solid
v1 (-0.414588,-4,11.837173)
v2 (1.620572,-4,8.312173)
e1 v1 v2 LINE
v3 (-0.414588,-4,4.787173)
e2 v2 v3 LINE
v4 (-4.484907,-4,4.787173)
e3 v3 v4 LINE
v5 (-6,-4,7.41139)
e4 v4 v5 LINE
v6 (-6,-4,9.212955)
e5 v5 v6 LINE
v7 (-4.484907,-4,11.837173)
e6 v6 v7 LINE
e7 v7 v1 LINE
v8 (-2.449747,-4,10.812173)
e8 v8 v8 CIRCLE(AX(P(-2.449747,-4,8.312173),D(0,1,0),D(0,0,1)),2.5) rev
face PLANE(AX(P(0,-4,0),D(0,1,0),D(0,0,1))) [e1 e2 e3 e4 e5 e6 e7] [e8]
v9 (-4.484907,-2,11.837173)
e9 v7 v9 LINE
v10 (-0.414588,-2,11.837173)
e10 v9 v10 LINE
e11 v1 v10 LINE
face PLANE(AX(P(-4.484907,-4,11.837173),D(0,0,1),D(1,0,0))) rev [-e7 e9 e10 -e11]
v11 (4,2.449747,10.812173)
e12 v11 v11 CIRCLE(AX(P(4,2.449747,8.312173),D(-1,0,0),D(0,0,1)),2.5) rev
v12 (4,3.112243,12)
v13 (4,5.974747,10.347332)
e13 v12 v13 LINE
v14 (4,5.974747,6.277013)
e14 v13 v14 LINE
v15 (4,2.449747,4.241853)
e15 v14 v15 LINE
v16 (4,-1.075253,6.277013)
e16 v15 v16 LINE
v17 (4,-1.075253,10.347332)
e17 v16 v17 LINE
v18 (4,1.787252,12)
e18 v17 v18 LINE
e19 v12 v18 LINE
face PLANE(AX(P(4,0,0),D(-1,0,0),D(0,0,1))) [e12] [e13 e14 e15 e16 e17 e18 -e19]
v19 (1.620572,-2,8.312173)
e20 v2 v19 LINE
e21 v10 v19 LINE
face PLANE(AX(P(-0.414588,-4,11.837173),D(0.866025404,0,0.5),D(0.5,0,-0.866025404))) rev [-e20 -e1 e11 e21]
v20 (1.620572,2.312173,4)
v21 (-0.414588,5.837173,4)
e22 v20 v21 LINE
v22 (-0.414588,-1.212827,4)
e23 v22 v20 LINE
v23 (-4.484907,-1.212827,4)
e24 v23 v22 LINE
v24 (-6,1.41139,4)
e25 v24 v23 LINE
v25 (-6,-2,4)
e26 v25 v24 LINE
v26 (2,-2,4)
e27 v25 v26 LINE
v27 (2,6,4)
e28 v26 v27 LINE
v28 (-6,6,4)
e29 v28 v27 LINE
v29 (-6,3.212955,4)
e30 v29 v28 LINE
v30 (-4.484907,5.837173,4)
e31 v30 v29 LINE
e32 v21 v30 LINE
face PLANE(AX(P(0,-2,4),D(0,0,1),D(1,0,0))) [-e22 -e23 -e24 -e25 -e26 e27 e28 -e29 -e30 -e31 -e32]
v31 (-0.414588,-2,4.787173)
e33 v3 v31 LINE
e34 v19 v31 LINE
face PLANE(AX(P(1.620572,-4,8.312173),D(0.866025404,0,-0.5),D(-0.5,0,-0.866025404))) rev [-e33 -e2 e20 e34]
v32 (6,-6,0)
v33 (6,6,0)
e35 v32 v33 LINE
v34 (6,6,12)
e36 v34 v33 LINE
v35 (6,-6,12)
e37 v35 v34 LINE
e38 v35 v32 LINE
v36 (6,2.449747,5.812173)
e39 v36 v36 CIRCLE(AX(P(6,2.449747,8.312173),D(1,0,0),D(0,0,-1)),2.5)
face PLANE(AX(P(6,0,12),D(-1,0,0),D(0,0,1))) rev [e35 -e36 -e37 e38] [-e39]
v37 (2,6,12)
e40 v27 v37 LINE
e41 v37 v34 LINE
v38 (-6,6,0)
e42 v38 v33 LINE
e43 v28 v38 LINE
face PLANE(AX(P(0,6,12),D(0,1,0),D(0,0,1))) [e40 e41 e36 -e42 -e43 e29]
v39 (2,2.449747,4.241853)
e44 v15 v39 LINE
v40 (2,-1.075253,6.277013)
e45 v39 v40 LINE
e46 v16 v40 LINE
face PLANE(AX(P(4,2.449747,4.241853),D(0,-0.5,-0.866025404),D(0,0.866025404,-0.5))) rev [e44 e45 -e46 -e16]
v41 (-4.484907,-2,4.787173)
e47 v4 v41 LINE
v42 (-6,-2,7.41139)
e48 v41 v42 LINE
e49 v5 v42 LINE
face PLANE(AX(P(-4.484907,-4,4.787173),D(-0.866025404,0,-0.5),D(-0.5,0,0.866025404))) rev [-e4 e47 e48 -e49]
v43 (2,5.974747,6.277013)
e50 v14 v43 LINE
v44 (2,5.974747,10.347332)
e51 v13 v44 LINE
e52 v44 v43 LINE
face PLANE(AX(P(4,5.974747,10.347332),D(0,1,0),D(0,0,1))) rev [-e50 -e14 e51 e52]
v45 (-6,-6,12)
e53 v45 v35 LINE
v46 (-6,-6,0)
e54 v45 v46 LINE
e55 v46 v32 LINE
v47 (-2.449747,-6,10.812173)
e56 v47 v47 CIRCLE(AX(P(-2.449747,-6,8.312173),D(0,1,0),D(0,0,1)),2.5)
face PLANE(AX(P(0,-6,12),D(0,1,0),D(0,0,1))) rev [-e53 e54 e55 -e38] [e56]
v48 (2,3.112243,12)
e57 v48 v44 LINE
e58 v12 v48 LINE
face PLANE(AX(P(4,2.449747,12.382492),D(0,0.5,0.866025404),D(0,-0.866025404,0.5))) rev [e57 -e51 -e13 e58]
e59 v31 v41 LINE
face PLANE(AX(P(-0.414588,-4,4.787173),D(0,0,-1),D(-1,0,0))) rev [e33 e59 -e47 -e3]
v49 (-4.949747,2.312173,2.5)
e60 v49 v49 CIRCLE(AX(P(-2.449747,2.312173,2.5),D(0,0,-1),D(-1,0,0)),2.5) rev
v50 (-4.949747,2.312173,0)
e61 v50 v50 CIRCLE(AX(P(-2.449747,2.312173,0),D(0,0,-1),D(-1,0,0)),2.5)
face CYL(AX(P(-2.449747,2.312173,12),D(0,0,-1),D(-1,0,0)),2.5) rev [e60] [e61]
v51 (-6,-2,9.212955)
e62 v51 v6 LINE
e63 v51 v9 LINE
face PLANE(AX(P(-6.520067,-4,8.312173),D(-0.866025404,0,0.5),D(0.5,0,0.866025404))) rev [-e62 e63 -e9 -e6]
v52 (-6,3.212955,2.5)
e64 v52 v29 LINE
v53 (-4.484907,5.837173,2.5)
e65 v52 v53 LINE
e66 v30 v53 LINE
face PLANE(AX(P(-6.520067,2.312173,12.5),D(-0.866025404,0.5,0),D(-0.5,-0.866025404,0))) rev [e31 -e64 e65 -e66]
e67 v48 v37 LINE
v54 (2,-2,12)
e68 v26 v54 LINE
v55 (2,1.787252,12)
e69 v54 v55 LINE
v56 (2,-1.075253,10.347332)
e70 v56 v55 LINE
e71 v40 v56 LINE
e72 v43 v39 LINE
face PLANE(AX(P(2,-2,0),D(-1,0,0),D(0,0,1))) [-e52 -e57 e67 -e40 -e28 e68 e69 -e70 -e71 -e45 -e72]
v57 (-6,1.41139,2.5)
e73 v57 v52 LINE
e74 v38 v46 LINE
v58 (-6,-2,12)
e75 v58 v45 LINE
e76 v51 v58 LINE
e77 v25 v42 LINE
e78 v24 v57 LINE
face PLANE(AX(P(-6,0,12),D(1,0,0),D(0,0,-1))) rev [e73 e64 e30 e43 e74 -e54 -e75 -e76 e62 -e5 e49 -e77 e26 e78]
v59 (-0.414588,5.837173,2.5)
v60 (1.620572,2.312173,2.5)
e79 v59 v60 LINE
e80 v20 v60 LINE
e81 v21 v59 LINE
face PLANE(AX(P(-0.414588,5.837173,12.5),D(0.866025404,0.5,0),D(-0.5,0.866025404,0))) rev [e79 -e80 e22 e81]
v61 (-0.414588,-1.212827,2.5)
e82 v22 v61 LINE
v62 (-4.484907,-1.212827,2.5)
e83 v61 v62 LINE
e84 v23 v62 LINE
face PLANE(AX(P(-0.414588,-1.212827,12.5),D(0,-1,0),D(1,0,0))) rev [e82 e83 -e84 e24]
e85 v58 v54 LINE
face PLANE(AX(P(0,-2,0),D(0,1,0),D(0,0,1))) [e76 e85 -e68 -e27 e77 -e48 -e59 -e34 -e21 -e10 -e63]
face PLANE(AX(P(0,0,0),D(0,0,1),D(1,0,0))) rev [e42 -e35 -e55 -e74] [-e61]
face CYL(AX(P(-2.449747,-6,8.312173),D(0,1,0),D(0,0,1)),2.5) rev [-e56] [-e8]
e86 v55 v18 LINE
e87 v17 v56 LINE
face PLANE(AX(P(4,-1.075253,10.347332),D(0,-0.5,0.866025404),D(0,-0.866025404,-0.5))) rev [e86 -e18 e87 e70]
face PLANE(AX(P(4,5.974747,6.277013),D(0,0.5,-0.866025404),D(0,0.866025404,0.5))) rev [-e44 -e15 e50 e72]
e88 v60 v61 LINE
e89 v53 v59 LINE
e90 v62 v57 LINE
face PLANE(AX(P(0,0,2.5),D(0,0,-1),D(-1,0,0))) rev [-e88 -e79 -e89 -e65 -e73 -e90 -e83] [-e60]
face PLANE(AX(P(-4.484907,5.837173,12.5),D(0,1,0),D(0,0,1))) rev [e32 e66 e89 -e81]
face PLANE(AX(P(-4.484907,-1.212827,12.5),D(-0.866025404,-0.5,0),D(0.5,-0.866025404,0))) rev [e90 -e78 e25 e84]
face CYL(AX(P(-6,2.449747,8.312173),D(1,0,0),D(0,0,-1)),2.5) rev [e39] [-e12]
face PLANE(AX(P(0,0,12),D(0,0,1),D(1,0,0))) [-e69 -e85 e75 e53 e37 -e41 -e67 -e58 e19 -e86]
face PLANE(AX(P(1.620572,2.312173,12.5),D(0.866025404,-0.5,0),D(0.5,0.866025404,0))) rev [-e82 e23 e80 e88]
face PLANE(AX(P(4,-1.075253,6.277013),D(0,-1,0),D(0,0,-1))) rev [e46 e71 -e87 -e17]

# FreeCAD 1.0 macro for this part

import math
import FreeCAD as App
import Part
import Sketcher

V = App.Vector
Q = App.Units.Quantity


def add_polygon(sketch, points):
    """Adds a closed chain of lines whose ends are joined by coincident constraints."""
    first, n = sketch.GeometryCount, len(points)
    for a, b in zip(points, points[1:] + points[:1]):
        sketch.addGeometry(Part.LineSegment(App.Vector(*a, 0), App.Vector(*b, 0)), False)
    for i in range(n):
        sketch.addConstraint(Sketcher.Constraint("Coincident", first + i, 2, first + (i + 1) % n, 1))

doc = App.newDocument("Part")
params = doc.addObject("Spreadsheet::Sheet", "Params")
for row, (alias, value) in enumerate([
    ("sketch1_width", "12 mm"),
    ("pad1_length", "12 mm"),
    ("sketch2_width", "8 mm"),
    ("pocket1_length", "8 mm"),
    ("sketch3_radius", "2.5 mm"),
    ("sketch4_diameter", "5 mm"),
    ("sketch5_radius", "2.5 mm"),
    ("pocket5_length", "10 mm"),
    ("pocket6_length", "2 mm"),
    ("pocket7_length", "2 mm"),
], start=1):
    params.set(f"A{row}", alias)
    params.set(f"B{row}", "=" + value)
    params.setAlias(f"B{row}", alias)

body = doc.addObject("PartDesign::Body", "Body")

sketch1 = body.newObject("Sketcher::SketchObject", "Sketch")
sketch1.AttachmentSupport = (doc.getObject("XY_Plane"), [""])
sketch1.MapMode = "FlatFace"
add_polygon(sketch1, [(6, -6), (6, 6), (-6, 6), (-6, -6)])
sketch1.addConstraint([
    Sketcher.Constraint("Vertical", 0),
    Sketcher.Constraint("Horizontal", 1),
    Sketcher.Constraint("Vertical", 2),
    Sketcher.Constraint("Horizontal", 3),
    Sketcher.Constraint("Symmetric", 0, 2, 2, 2, -1, 1),
    Sketcher.Constraint("Equal", 3, 0),
    Sketcher.Constraint("DistanceX", 1, 2, 1, 1, Q("12 mm")),
])
sketch1.setExpression("Constraints[10]", "Params.sketch1_width")
pad1 = body.newObject("PartDesign::Pad", "Pad")
pad1.Profile = sketch1
pad1.setExpression("Length", "Params.pad1_length")

sketch2 = body.newObject("Sketcher::SketchObject", "Sketch001")
sketch2.AttachmentSupport = (doc.getObject("XZ_Plane"), [""])
sketch2.MapMode = "FlatFace"
sketch2.AttachmentOffset = App.Placement(V(0, 0, -6), App.Rotation())
add_polygon(sketch2, [(-6, 4), (-6, 12), (2, 12), (2, 4)])
sketch2.addConstraint([
    Sketcher.Constraint("Vertical", 0),
    Sketcher.Constraint("Horizontal", 1),
    Sketcher.Constraint("Vertical", 2),
    Sketcher.Constraint("Horizontal", 3),
    Sketcher.Constraint("Equal", 3, 0),
    Sketcher.Constraint("DistanceX", 1, 1, 1, 2, Q("8 mm")),
    Sketcher.Constraint("DistanceX", 0, 2, -1, 1, Q("6 mm")),
    Sketcher.Constraint("DistanceY", -1, 1, 0, 2, Q("12 mm")),
])
sketch2.setExpression("Constraints[9]", "Params.sketch2_width")
pocket1 = body.newObject("PartDesign::Pocket", "Pocket")
pocket1.Profile = sketch2
pocket1.setExpression("Length", "Params.pocket1_length")
pocket1.Reversed = True

sketch3 = body.newObject("Sketcher::SketchObject", "Sketch002")
sketch3.AttachmentSupport = (doc.getObject("XZ_Plane"), [""])
sketch3.MapMode = "FlatFace"
sketch3.AttachmentOffset = App.Placement(V(0, 0, 2), App.Rotation())
sketch3.addGeometry([
    Part.ArcOfCircle(Part.Circle(V(-2.4, 8.3, 0), V(0, 0, 1), 2.5), math.radians(180), math.radians(270)),
    Part.ArcOfCircle(Part.Circle(V(-2.4, 8.3, 0), V(0, 0, 1), 2.5), math.radians(90), math.radians(180)),
    Part.ArcOfCircle(Part.Circle(V(-2.4, 8.3, 0), V(0, 0, 1), 2.5), math.radians(0), math.radians(90)),
    Part.ArcOfCircle(Part.Circle(V(-2.4, 8.3, 0), V(0, 0, 1), 2.5), math.radians(-90), math.radians(0)),
], False)
sketch3.addConstraint([
    Sketcher.Constraint("Tangent", 0, 1, 1, 2),
    Sketcher.Constraint("Tangent", 1, 1, 2, 2),
    Sketcher.Constraint("Tangent", 2, 1, 3, 2),
    Sketcher.Constraint("Tangent", 3, 1, 0, 2),
    Sketcher.Constraint("Equal", 0, 1),
    Sketcher.Constraint("Horizontal", 3, 3, 0, 1),
    Sketcher.Constraint("Horizontal", 0, 1, 2, 1),
    Sketcher.Constraint("Vertical", 3, 3, 1, 1),
    Sketcher.Constraint("Vertical", 1, 1, 3, 1),
    Sketcher.Constraint("Radius", 0, Q("2.5 mm")),
    Sketcher.Constraint("DistanceX", 0, 3, -1, 1, Q("2.449747 mm")),
    Sketcher.Constraint("DistanceY", -1, 1, 0, 3, Q("8.312173 mm")),
])
sketch3.setExpression("Constraints[9]", "Params.sketch3_radius")
pocket2 = body.newObject("PartDesign::Pocket", "Pocket001")
pocket2.Profile = sketch3
pocket2.Type = "ThroughAll"
pocket2.Reversed = True

sketch4 = body.newObject("Sketcher::SketchObject", "Sketch003")
sketch4.AttachmentSupport = (doc.getObject("YZ_Plane"), [""])
sketch4.MapMode = "FlatFace"
sketch4.AttachmentOffset = App.Placement(V(0, 0, 6), App.Rotation())
sketch4.addGeometry(Part.Circle(V(2.4, 8.3, 0), V(0, 0, 1), 2.5), False)
sketch4.addConstraint([
    Sketcher.Constraint("Diameter", 0, Q("5 mm")),
    Sketcher.Constraint("DistanceX", -1, 1, 0, 3, Q("2.449747 mm")),
    Sketcher.Constraint("DistanceY", -1, 1, 0, 3, Q("8.312173 mm")),
])
sketch4.setExpression("Constraints[0]", "Params.sketch4_diameter")
pocket3 = body.newObject("PartDesign::Pocket", "Pocket002")
pocket3.Profile = sketch4
pocket3.Type = "ThroughAll"

sketch5 = body.newObject("Sketcher::SketchObject", "Sketch004")
sketch5.AttachmentSupport = (doc.getObject("XY_Plane"), [""])
sketch5.MapMode = "FlatFace"
sketch5.addGeometry([
    Part.ArcOfCircle(Part.Circle(V(-2.4, 2.3, 0), V(0, 0, 1), 2.5), math.radians(180), math.radians(270)),
    Part.ArcOfCircle(Part.Circle(V(-2.4, 2.3, 0), V(0, 0, 1), 2.5), math.radians(90), math.radians(180)),
    Part.ArcOfCircle(Part.Circle(V(-2.4, 2.3, 0), V(0, 0, 1), 2.5), math.radians(0), math.radians(90)),
    Part.ArcOfCircle(Part.Circle(V(-2.4, 2.3, 0), V(0, 0, 1), 2.5), math.radians(-90), math.radians(0)),
], False)
sketch5.addConstraint([
    Sketcher.Constraint("Tangent", 0, 1, 1, 2),
    Sketcher.Constraint("Tangent", 1, 1, 2, 2),
    Sketcher.Constraint("Tangent", 2, 1, 3, 2),
    Sketcher.Constraint("Tangent", 3, 1, 0, 2),
    Sketcher.Constraint("Equal", 0, 1),
    Sketcher.Constraint("Horizontal", 3, 3, 0, 1),
    Sketcher.Constraint("Horizontal", 0, 1, 2, 1),
    Sketcher.Constraint("Vertical", 3, 3, 1, 1),
    Sketcher.Constraint("Vertical", 1, 1, 3, 1),
    Sketcher.Constraint("Radius", 0, Q("2.5 mm")),
    Sketcher.Constraint("DistanceX", 0, 3, -1, 1, Q("2.449747 mm")),
    Sketcher.Constraint("DistanceY", -1, 1, 0, 3, Q("2.312173 mm")),
])
sketch5.setExpression("Constraints[9]", "Params.sketch5_radius")
pocket4 = body.newObject("PartDesign::Pocket", "Pocket003")
pocket4.Profile = sketch5
pocket4.Type = "ThroughAll"
pocket4.Reversed = True

sketch6 = body.newObject("Sketcher::SketchObject", "Sketch005")
sketch6.AttachmentSupport = (doc.getObject("XY_Plane"), [""])
sketch6.MapMode = "FlatFace"
sketch6.AttachmentOffset = App.Placement(V(0, 0, 2.5), App.Rotation())
add_polygon(sketch6, [(-6.5, 2.3), (-4.5, 5.8), (-0.4, 5.8), (1.6, 2.3), (-0.4, -1.2), (-4.5, -1.2)])
sketch6.addConstraint([
    Sketcher.Constraint("Horizontal", 1),
    Sketcher.Constraint("Horizontal", 4),
    Sketcher.Constraint("Parallel", 0, 3),
    Sketcher.Constraint("Parallel", 2, 5),
    Sketcher.Constraint("Horizontal", 2, 2, 5, 2),
    Sketcher.Constraint("Vertical", 1, 2, 3, 2),
    Sketcher.Constraint("Vertical", 0, 2, 4, 2),
    Sketcher.Constraint("Angle", 0, Q("60 deg")),
    Sketcher.Constraint("DistanceY", 3, 2, 1, 2, Q("7.05 mm")),
    Sketcher.Constraint("DistanceX", 1, 1, 1, 2, Q("4.070319 mm")),
    Sketcher.Constraint("DistanceX", -1, 1, 2, 2, Q("1.620572 mm")),
    Sketcher.Constraint("DistanceY", -1, 1, 0, 2, Q("5.837173 mm")),
])
pocket5 = body.newObject("PartDesign::Pocket", "Pocket004")
pocket5.Profile = sketch6
pocket5.setExpression("Length", "Params.pocket5_length")
pocket5.Reversed = True

sketch7 = body.newObject("Sketcher::SketchObject", "Sketch006")
sketch7.AttachmentSupport = (doc.getObject("XZ_Plane"), [""])
sketch7.MapMode = "FlatFace"
sketch7.AttachmentOffset = App.Placement(V(0, 0, 2), App.Rotation())
add_polygon(sketch7, [(1.6, 8.3), (-0.4, 4.8), (-4.5, 4.8), (-6.5, 8.3), (-4.5, 11.8), (-0.4, 11.8)])
sketch7.addConstraint([
    Sketcher.Constraint("Horizontal", 1),
    Sketcher.Constraint("Horizontal", 4),
    Sketcher.Constraint("Parallel", 0, 3),
    Sketcher.Constraint("Parallel", 2, 5),
    Sketcher.Constraint("Horizontal", 2, 2, 5, 2),
    Sketcher.Constraint("Vertical", 1, 2, 3, 2),
    Sketcher.Constraint("Vertical", 0, 2, 4, 2),
    Sketcher.Constraint("Angle", 0, Q("-120 deg")),
    Sketcher.Constraint("DistanceY", 1, 2, 3, 2, Q("7.05 mm")),
    Sketcher.Constraint("DistanceX", 1, 2, 1, 1, Q("4.070319 mm")),
    Sketcher.Constraint("DistanceX", -1, 1, 5, 2, Q("1.620572 mm")),
    Sketcher.Constraint("DistanceY", -1, 1, 0, 2, Q("4.787173 mm")),
])
pocket6 = body.newObject("PartDesign::Pocket", "Pocket005")
pocket6.Profile = sketch7
pocket6.setExpression("Length", "Params.pocket6_length")
pocket6.Reversed = True

sketch8 = body.newObject("Sketcher::SketchObject", "Sketch007")
sketch8.AttachmentSupport = (doc.getObject("YZ_Plane"), [""])
sketch8.MapMode = "FlatFace"
sketch8.AttachmentOffset = App.Placement(V(0, 0, 2), App.Rotation())
add_polygon(sketch8, [(2.4, 12.4), (6, 10.3), (6, 6.3), (2.4, 4.2), (-1.1, 6.3), (-1.1, 10.3)])
sketch8.addConstraint([
    Sketcher.Constraint("Vertical", 1),
    Sketcher.Constraint("Vertical", 4),
    Sketcher.Constraint("Parallel", 0, 3),
    Sketcher.Constraint("Parallel", 2, 5),
    Sketcher.Constraint("Horizontal", 1, 2, 3, 2),
    Sketcher.Constraint("Horizontal", 0, 2, 4, 2),
    Sketcher.Constraint("Vertical", 2, 2, 5, 2),
    Sketcher.Constraint("Angle", 0, Q("-30 deg")),
    Sketcher.Constraint("DistanceX", 3, 2, 1, 2, Q("7.05 mm")),
    Sketcher.Constraint("DistanceY", 1, 2, 1, 1, Q("4.070319 mm")),
    Sketcher.Constraint("DistanceY", -1, 1, 5, 2, Q("12.382492 mm")),
    Sketcher.Constraint("DistanceX", -1, 1, 0, 2, Q("5.974747 mm")),
])
pocket7 = body.newObject("PartDesign::Pocket", "Pocket006")
pocket7.Profile = sketch8
pocket7.setExpression("Length", "Params.pocket7_length")
pocket7.Reversed = True

doc.recompute()
